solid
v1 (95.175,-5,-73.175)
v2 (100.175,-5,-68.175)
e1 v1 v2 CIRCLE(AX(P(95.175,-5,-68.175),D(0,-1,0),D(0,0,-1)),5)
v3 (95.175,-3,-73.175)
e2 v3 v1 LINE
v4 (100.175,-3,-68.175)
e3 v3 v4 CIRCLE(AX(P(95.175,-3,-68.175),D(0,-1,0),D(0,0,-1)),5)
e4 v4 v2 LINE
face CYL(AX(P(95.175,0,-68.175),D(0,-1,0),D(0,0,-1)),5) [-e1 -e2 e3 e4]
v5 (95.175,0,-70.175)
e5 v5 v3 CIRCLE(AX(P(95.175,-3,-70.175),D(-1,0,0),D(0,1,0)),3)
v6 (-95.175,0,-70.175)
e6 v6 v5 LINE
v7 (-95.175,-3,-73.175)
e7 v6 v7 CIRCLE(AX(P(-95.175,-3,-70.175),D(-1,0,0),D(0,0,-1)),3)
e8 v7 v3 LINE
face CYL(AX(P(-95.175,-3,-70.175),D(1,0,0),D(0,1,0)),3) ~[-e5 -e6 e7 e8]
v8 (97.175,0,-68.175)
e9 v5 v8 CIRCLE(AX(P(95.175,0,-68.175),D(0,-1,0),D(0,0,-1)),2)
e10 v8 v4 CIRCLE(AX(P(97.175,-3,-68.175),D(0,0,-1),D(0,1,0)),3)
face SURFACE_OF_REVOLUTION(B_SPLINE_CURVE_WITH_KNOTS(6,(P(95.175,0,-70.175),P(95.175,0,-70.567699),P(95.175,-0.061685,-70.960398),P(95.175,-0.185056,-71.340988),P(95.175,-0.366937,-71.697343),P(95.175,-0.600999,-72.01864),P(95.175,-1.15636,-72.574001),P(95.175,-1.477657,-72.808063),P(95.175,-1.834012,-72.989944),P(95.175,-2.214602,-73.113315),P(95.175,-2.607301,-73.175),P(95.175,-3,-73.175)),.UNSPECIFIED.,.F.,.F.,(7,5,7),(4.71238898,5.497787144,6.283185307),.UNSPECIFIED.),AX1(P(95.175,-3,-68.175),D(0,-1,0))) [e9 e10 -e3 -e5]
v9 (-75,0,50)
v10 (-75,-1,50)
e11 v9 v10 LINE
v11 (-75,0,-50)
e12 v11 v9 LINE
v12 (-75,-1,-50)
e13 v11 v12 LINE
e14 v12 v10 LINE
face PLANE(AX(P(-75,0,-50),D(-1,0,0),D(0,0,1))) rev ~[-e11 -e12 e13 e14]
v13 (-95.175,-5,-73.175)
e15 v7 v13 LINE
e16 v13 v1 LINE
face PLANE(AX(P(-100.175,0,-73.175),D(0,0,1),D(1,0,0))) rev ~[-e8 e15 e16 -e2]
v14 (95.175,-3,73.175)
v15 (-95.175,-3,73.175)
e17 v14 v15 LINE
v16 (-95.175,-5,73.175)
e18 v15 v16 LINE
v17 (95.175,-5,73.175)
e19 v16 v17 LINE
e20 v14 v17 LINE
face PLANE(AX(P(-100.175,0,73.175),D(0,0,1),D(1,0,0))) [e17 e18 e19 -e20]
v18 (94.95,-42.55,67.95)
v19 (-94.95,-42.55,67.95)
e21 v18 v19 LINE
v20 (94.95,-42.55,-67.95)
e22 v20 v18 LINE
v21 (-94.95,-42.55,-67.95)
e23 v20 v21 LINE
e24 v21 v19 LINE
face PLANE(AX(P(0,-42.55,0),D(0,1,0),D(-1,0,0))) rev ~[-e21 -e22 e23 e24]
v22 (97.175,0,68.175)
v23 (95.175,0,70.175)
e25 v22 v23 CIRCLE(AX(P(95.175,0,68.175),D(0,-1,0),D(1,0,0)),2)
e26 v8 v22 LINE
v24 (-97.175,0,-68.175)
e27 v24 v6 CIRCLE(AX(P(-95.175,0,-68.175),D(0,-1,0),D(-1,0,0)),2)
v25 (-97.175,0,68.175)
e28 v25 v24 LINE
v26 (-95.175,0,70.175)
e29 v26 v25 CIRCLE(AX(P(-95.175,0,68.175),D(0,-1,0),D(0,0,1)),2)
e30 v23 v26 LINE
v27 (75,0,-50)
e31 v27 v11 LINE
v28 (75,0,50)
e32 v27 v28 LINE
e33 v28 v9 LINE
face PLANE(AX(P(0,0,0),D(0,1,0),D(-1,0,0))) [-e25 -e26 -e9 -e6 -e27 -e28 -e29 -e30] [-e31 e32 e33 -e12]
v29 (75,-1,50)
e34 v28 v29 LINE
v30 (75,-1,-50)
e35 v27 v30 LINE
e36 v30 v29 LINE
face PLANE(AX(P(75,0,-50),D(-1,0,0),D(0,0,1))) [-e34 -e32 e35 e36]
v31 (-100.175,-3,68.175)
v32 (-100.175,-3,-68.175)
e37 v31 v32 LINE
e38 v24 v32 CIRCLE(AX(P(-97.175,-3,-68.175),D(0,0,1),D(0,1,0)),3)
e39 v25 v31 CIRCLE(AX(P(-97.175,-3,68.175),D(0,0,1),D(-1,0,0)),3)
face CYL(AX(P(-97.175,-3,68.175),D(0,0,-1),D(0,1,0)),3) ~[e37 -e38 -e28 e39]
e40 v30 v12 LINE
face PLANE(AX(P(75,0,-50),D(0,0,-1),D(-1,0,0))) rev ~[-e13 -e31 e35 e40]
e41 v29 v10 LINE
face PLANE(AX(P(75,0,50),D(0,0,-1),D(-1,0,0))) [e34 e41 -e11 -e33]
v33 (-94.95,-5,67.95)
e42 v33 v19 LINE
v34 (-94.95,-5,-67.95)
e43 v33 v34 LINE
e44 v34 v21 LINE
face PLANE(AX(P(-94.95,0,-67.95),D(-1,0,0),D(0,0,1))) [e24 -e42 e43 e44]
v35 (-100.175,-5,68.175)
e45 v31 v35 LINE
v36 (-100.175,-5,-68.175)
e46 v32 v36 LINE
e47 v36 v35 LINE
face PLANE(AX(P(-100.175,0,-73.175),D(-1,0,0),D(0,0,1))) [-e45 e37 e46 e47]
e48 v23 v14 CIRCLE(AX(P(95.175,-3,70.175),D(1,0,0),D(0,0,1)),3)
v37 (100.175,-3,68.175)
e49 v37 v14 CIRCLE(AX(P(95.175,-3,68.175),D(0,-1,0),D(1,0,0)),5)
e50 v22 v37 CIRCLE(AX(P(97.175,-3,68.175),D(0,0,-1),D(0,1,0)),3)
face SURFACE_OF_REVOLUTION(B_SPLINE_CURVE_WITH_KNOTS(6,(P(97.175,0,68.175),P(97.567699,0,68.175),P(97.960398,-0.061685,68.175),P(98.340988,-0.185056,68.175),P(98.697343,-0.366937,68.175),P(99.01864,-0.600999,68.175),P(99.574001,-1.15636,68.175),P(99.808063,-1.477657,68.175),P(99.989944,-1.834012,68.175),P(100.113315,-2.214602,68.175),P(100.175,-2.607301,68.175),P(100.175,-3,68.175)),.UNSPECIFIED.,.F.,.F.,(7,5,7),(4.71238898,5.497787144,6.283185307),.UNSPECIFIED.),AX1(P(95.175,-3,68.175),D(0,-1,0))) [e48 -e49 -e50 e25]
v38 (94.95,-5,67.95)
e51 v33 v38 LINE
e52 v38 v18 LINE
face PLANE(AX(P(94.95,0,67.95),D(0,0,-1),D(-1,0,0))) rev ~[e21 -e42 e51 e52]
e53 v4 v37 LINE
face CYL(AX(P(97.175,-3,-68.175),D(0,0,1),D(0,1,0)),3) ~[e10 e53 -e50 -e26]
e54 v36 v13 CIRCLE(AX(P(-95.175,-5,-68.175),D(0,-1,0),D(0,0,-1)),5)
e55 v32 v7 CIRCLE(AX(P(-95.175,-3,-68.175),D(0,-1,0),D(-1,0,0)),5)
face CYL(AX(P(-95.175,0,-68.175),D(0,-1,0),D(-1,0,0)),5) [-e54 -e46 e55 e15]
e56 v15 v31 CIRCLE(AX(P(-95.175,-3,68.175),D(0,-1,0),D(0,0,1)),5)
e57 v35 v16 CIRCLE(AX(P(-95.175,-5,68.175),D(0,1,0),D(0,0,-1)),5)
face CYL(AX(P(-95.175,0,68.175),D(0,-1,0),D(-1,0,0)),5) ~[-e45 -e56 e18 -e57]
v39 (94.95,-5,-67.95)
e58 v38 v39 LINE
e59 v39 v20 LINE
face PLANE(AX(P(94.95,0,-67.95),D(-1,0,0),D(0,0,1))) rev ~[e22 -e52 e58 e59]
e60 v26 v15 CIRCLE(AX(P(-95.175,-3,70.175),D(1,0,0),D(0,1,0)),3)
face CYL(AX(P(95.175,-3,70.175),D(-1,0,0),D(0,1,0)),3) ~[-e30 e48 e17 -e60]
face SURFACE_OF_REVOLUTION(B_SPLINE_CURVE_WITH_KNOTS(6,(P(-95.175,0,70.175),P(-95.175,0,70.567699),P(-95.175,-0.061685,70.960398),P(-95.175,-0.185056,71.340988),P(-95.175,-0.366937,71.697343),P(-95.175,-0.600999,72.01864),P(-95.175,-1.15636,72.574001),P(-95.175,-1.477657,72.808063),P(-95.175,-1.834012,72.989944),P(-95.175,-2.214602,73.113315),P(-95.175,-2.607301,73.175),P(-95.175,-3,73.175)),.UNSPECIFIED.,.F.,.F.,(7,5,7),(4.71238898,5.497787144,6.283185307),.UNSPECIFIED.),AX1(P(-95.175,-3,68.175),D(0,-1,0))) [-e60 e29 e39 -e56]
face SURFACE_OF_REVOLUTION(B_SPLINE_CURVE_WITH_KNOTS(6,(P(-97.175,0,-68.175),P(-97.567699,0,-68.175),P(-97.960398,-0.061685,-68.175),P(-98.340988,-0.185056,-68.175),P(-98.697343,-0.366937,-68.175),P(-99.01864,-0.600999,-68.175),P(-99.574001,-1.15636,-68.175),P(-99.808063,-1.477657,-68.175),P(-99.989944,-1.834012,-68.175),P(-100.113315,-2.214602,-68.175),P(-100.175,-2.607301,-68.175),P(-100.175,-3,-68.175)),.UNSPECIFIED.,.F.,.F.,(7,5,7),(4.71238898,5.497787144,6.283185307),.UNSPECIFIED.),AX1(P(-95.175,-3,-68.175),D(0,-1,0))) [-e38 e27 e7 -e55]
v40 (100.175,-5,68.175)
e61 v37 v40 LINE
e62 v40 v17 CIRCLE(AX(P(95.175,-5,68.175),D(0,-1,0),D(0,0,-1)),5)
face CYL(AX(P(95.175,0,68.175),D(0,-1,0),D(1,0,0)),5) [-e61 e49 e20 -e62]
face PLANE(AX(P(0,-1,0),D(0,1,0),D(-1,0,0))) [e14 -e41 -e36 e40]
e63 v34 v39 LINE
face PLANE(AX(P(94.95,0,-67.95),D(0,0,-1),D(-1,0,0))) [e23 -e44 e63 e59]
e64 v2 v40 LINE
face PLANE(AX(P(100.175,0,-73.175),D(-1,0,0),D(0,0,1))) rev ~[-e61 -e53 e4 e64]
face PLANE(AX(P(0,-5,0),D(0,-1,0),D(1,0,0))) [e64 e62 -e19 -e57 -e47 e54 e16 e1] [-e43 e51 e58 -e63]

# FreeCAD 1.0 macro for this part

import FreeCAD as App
import Part
import Sketcher

V = App.Vector


def edges_at(feature, points):
    """Names of the edges that pass closest to the given points."""
    edges = feature.Shape.Edges
    near = lambda p: min(range(len(edges)), key=lambda i: edges[i].distToShape(Part.Vertex(*p))[0])
    return sorted({f"Edge{near(p) + 1}" for p in points})

doc = App.newDocument("Part")
params = doc.addObject("Spreadsheet::Sheet", "Params")
for row, (alias, value) in enumerate([
    ("sketch1_width", "200.35 mm"),
    ("sketch1_height", "146.35 mm"),
    ("pad1_length", "5 mm"),
    ("fillet_radius", "5 mm"),
    ("sketch2_width", "189.9 mm"),
    ("sketch2_height", "135.9 mm"),
    ("pad2_length", "42.55 mm"),
    ("fillet2_radius", "3 mm"),
    ("sketch3_width", "150 mm"),
    ("sketch3_height", "100 mm"),
    ("pocket1_length", "1 mm"),
], start=1):
    params.set(f"A{row}", alias)
    params.set(f"B{row}", "=" + value)
    params.setAlias(f"B{row}", alias)

body = doc.addObject("PartDesign::Body", "Body")

# Sketch on XZ plane
sketch1 = body.newObject("Sketcher::SketchObject", "Sketch")
sketch1.AttachmentSupport = (doc.getObject("XZ_Plane"), [""])
sketch1.MapMode = "FlatFace"
sketch1.addGeometry([
    Part.LineSegment(V(-100.175, 73.175, 0), V(-100.175, -73.175, 0)),
    Part.LineSegment(V(-100.175, -73.175, 0), V(100.175, -73.175, 0)),
    Part.LineSegment(V(100.175, -73.175, 0), V(100.175, 73.175, 0)),
    Part.LineSegment(V(100.175, 73.175, 0), V(-100.175, 73.175, 0)),
], False)
sketch1.addConstraint([
    Sketcher.Constraint("Coincident", 0, 2, 1, 1),
    Sketcher.Constraint("Coincident", 1, 2, 2, 1),
    Sketcher.Constraint("Coincident", 2, 2, 3, 1),
    Sketcher.Constraint("Coincident", 3, 2, 0, 1),
    Sketcher.Constraint("Vertical", 0),
    Sketcher.Constraint("Horizontal", 1),
    Sketcher.Constraint("Vertical", 2),
    Sketcher.Constraint("Horizontal", 3),
    Sketcher.Constraint("Symmetric", 0, 2, 2, 2, -1, 1),
    Sketcher.Constraint("DistanceX", 1, 1, 1, 2, 200.35),
    Sketcher.Constraint("DistanceY", 0, 2, 0, 1, 146.35),
])
sketch1.setExpression("Constraints[9]", "Params.sketch1_width")
sketch1.setExpression("Constraints[10]", "Params.sketch1_height")
pad1 = body.newObject("PartDesign::Pad", "Pad")
pad1.Profile = sketch1
pad1.setExpression("Length", "Params.pad1_length")
doc.recompute()

fillet = body.newObject("PartDesign::Fillet", "Fillet")
fillet.Base = (pad1, edges_at(pad1, [
    (100.175, -2.5, 73.175),
    (-100.175, -2.5, 73.175),
    (-100.175, -2.5, -73.175),
    (100.175, -2.5, -73.175),
]))
fillet.setExpression("Radius", "Params.fillet_radius")

# Sketch on XZ plane
sketch2 = body.newObject("Sketcher::SketchObject", "Sketch001")
sketch2.AttachmentSupport = (doc.getObject("XZ_Plane"), [""])
sketch2.MapMode = "FlatFace"
sketch2.addGeometry([
    Part.LineSegment(V(94.95, 67.95, 0), V(94.95, -67.95, 0)),
    Part.LineSegment(V(94.95, -67.95, 0), V(-94.95, -67.95, 0)),
    Part.LineSegment(V(-94.95, -67.95, 0), V(-94.95, 67.95, 0)),
    Part.LineSegment(V(-94.95, 67.95, 0), V(94.95, 67.95, 0)),
], False)
sketch2.addConstraint([
    Sketcher.Constraint("Coincident", 0, 2, 1, 1),
    Sketcher.Constraint("Coincident", 1, 2, 2, 1),
    Sketcher.Constraint("Coincident", 2, 2, 3, 1),
    Sketcher.Constraint("Coincident", 3, 2, 0, 1),
    Sketcher.Constraint("Vertical", 0),
    Sketcher.Constraint("Horizontal", 1),
    Sketcher.Constraint("Vertical", 2),
    Sketcher.Constraint("Horizontal", 3),
    Sketcher.Constraint("Symmetric", 0, 2, 2, 2, -1, 1),
    Sketcher.Constraint("DistanceX", 1, 2, 1, 1, 189.9),
    Sketcher.Constraint("DistanceY", 0, 2, 0, 1, 135.9),
])
sketch2.setExpression("Constraints[9]", "Params.sketch2_width")
sketch2.setExpression("Constraints[10]", "Params.sketch2_height")
pad2 = body.newObject("PartDesign::Pad", "Pad001")
pad2.Profile = sketch2
pad2.setExpression("Length", "Params.pad2_length")
doc.recompute()

fillet2 = body.newObject("PartDesign::Fillet", "Fillet001")
fillet2.Base = (pad2, edges_at(pad2, [
    (100.175, 0, 0),
    (98.711, 0, 71.711),
    (0, 0, 73.175),
    (-98.711, 0, 71.711),
    (-100.175, 0, 0),
    (-98.711, 0, -71.711),
    (0, 0, -73.175),
    (98.711, 0, -71.711),
]))
fillet2.setExpression("Radius", "Params.fillet2_radius")

# Sketch on XZ plane
sketch3 = body.newObject("Sketcher::SketchObject", "Sketch002")
sketch3.AttachmentSupport = (doc.getObject("XZ_Plane"), [""])
sketch3.MapMode = "FlatFace"
sketch3.addGeometry([
    Part.LineSegment(V(75, 50, 0), V(75, -50, 0)),
    Part.LineSegment(V(75, -50, 0), V(-75, -50, 0)),
    Part.LineSegment(V(-75, -50, 0), V(-75, 50, 0)),
    Part.LineSegment(V(-75, 50, 0), V(75, 50, 0)),
], False)
sketch3.addConstraint([
    Sketcher.Constraint("Coincident", 0, 2, 1, 1),
    Sketcher.Constraint("Coincident", 1, 2, 2, 1),
    Sketcher.Constraint("Coincident", 2, 2, 3, 1),
    Sketcher.Constraint("Coincident", 3, 2, 0, 1),
    Sketcher.Constraint("Vertical", 0),
    Sketcher.Constraint("Horizontal", 1),
    Sketcher.Constraint("Vertical", 2),
    Sketcher.Constraint("Horizontal", 3),
    Sketcher.Constraint("Symmetric", 0, 2, 2, 2, -1, 1),
    Sketcher.Constraint("DistanceX", 1, 2, 1, 1, 150.0),
    Sketcher.Constraint("DistanceY", 0, 2, 0, 1, 100.0),
])
sketch3.setExpression("Constraints[9]", "Params.sketch3_width")
sketch3.setExpression("Constraints[10]", "Params.sketch3_height")
pocket1 = body.newObject("PartDesign::Pocket", "Pocket")
pocket1.Profile = sketch3
pocket1.setExpression("Length", "Params.pocket1_length")
pocket1.Reversed = True

doc.recompute()
